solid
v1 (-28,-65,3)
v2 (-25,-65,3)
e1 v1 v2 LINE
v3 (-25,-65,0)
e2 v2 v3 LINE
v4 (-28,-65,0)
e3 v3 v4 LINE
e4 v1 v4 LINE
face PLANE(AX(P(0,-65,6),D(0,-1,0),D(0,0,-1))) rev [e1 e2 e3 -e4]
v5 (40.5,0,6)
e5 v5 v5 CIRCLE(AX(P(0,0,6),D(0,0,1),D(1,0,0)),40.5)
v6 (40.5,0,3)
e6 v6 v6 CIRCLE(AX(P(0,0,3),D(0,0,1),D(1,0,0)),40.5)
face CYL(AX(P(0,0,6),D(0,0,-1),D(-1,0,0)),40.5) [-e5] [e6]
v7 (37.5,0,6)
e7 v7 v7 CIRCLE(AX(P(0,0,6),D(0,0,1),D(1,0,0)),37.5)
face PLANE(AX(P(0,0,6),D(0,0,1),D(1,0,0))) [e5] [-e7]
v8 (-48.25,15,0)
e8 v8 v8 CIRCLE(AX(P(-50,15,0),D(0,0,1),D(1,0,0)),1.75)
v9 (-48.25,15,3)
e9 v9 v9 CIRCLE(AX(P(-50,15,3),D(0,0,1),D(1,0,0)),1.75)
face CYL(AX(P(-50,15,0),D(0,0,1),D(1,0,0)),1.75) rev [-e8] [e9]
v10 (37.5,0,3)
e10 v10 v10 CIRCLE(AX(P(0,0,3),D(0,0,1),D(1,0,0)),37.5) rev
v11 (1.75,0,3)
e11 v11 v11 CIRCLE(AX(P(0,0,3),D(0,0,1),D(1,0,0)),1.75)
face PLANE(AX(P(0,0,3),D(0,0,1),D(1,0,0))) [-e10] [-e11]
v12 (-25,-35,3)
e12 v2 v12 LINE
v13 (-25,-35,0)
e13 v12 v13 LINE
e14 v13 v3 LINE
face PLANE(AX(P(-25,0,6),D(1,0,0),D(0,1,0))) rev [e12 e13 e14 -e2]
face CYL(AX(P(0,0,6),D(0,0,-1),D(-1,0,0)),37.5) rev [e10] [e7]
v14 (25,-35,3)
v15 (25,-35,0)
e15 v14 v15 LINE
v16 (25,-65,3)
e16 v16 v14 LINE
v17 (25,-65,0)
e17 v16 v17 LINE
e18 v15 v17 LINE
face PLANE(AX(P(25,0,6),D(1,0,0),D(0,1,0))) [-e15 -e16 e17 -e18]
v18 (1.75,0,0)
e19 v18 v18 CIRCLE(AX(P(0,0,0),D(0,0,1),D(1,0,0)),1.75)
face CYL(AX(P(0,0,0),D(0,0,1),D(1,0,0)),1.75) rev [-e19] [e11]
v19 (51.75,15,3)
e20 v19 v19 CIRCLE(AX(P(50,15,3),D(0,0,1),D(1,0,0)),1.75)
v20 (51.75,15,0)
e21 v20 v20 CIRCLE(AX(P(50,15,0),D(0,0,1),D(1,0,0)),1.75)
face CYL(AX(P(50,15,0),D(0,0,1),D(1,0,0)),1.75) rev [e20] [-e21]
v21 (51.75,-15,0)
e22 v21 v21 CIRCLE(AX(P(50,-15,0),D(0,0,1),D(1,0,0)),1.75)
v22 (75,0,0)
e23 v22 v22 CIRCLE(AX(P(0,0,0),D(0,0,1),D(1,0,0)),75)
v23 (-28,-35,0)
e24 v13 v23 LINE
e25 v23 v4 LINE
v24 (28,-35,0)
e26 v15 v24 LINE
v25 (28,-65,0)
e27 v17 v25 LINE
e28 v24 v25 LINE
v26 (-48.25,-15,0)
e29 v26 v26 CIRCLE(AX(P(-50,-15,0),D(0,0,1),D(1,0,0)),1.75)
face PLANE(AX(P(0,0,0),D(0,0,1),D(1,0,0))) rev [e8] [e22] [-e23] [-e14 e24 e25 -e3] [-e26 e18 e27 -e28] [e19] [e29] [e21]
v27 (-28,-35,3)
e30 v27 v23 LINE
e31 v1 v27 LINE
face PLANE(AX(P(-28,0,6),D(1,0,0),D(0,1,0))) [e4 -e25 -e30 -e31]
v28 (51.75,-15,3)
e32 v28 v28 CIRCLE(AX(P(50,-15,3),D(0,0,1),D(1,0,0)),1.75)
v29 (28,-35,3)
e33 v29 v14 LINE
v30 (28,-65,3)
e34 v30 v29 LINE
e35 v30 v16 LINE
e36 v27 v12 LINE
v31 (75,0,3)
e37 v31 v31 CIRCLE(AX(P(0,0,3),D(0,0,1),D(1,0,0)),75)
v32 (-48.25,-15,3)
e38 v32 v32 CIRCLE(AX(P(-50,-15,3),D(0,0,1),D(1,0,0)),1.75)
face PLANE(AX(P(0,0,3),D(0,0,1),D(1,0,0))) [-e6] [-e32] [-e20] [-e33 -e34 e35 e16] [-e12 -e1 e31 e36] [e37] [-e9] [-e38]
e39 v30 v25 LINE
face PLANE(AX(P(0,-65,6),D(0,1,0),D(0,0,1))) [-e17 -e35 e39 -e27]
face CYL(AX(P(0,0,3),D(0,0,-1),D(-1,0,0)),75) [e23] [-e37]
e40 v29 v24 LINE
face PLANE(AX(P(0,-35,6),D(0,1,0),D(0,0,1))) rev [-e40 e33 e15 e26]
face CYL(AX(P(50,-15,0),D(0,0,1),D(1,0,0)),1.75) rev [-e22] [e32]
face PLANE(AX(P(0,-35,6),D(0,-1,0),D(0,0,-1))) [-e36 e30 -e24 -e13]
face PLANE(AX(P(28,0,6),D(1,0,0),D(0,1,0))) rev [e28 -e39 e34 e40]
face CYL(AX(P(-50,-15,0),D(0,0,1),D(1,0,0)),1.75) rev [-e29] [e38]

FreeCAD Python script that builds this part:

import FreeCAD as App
import Part
import Sketcher

V = App.Vector


def add_polygon(sketch, points):
    """Adds a closed chain of lines whose ends are joined by coincident constraints."""
    first, n = sketch.GeometryCount, len(points)
    for a, b in zip(points, points[1:] + points[:1]):
        sketch.addGeometry(Part.LineSegment(App.Vector(*a, 0), App.Vector(*b, 0)), False)
    for i in range(n):
        sketch.addConstraint(Sketcher.Constraint("Coincident", first + i, 2, first + (i + 1) % n, 1))

doc = App.newDocument("Part")
body = doc.addObject("PartDesign::Body", "Body")

sketch1 = body.newObject("Sketcher::SketchObject", "Sketch")
sketch1.AttachmentSupport = (doc.getObject("XY_Plane"), [""])
sketch1.MapMode = "FlatFace"
sketch1.addGeometry(Part.Circle(V(0, 0, 0), V(0, 0, 1), 75), False)
sketch1.addConstraint([
    Sketcher.Constraint("Coincident", 0, 3, -1, 1),
    Sketcher.Constraint("Diameter", 0, 150.0),
])
pad1 = body.newObject("PartDesign::Pad", "Pad")
pad1.Profile = sketch1
pad1.Length = 3

sketch2 = body.newObject("Sketcher::SketchObject", "Sketch001")
sketch2.AttachmentSupport = (doc.getObject("XY_Plane"), [""])
sketch2.MapMode = "FlatFace"
sketch2.AttachmentOffset = App.Placement(V(0, 0, 3), App.Rotation())
sketch2.addGeometry([
    Part.Circle(V(-50, 15, 0), V(0, 0, 1), 1.75),
    Part.Circle(V(-50, -15, 0), V(0, 0, 1), 1.75),
    Part.Circle(V(50, -15, 0), V(0, 0, 1), 1.75),
    Part.Circle(V(50, 15, 0), V(0, 0, 1), 1.75),
    Part.Circle(V(0, 0, 0), V(0, 0, 1), 1.75),
], False)
sketch2.addConstraint([
    Sketcher.Constraint("Coincident", 4, 3, -1, 1),
    Sketcher.Constraint("Equal", 0, 1),
    Sketcher.Constraint("Equal", 1, 2),
    Sketcher.Constraint("Equal", 2, 3),
    Sketcher.Constraint("Equal", 3, 4),
    Sketcher.Constraint("Symmetric", 0, 3, 2, 3, -1, 1),
    Sketcher.Constraint("Symmetric", 1, 3, 3, 3, -1, 1),
    Sketcher.Constraint("Symmetric", 1, 3, 2, 3, -2),
    Sketcher.Constraint("Diameter", 0, 3.5),
    Sketcher.Constraint("DistanceX", 0, 3, -1, 1, 50.0),
    Sketcher.Constraint("DistanceY", -1, 1, 0, 3, 15.0),
])
pocket1 = body.newObject("PartDesign::Pocket", "Pocket")
pocket1.Profile = sketch2
pocket1.Type = "ThroughAll"

sketch3 = body.newObject("Sketcher::SketchObject", "Sketch002")
sketch3.AttachmentSupport = (doc.getObject("XY_Plane"), [""])
sketch3.MapMode = "FlatFace"
sketch3.AttachmentOffset = App.Placement(V(0, 0, 3), App.Rotation())
sketch3.addGeometry([
    Part.Circle(V(0, 0, 0), V(0, 0, 1), 40.5),
    Part.Circle(V(0, 0, 0), V(0, 0, 1), 37.5),
], False)
sketch3.addConstraint([
    Sketcher.Constraint("Coincident", 0, 3, -1, 1),
    Sketcher.Constraint("Coincident", 1, 3, -1, 1),
    Sketcher.Constraint("Diameter", 0, 81.0),
    Sketcher.Constraint("Diameter", 1, 75.0),
])
pad2 = body.newObject("PartDesign::Pad", "Pad001")
pad2.Profile = sketch3
pad2.Length = 3

sketch4 = body.newObject("Sketcher::SketchObject", "Sketch003")
sketch4.AttachmentSupport = (doc.getObject("XY_Plane"), [""])
sketch4.MapMode = "FlatFace"
add_polygon(sketch4, [(28, -35), (28, -65), (25, -65), (25, -35)])
add_polygon(sketch4, [(-25, -35), (-25, -65), (-28, -65), (-28, -35)])
sketch4.addConstraint([
    Sketcher.Constraint("Vertical", 0),
    Sketcher.Constraint("Horizontal", 1),
    Sketcher.Constraint("Vertical", 2),
    Sketcher.Constraint("Horizontal", 3),
    Sketcher.Constraint("Vertical", 4),
    Sketcher.Constraint("Horizontal", 5),
    Sketcher.Constraint("Vertical", 6),
    Sketcher.Constraint("Horizontal", 7),
    Sketcher.Constraint("Symmetric", 1, 2, 4, 2, -2),
    Sketcher.Constraint("Symmetric", 3, 2, 6, 2, -2),
    Sketcher.Constraint("DistanceX", 1, 2, 1, 1, 3.0),
    Sketcher.Constraint("DistanceY", 0, 2, 0, 1, 30.0),
    Sketcher.Constraint("DistanceX", -1, 1, 0, 2, 28.0),
    Sketcher.Constraint("DistanceY", 0, 2, -1, 1, 65.0),
])
pocket2 = body.newObject("PartDesign::Pocket", "Pocket001")
pocket2.Profile = sketch4
pocket2.Type = "ThroughAll"
pocket2.Reversed = True

doc.recompute()
